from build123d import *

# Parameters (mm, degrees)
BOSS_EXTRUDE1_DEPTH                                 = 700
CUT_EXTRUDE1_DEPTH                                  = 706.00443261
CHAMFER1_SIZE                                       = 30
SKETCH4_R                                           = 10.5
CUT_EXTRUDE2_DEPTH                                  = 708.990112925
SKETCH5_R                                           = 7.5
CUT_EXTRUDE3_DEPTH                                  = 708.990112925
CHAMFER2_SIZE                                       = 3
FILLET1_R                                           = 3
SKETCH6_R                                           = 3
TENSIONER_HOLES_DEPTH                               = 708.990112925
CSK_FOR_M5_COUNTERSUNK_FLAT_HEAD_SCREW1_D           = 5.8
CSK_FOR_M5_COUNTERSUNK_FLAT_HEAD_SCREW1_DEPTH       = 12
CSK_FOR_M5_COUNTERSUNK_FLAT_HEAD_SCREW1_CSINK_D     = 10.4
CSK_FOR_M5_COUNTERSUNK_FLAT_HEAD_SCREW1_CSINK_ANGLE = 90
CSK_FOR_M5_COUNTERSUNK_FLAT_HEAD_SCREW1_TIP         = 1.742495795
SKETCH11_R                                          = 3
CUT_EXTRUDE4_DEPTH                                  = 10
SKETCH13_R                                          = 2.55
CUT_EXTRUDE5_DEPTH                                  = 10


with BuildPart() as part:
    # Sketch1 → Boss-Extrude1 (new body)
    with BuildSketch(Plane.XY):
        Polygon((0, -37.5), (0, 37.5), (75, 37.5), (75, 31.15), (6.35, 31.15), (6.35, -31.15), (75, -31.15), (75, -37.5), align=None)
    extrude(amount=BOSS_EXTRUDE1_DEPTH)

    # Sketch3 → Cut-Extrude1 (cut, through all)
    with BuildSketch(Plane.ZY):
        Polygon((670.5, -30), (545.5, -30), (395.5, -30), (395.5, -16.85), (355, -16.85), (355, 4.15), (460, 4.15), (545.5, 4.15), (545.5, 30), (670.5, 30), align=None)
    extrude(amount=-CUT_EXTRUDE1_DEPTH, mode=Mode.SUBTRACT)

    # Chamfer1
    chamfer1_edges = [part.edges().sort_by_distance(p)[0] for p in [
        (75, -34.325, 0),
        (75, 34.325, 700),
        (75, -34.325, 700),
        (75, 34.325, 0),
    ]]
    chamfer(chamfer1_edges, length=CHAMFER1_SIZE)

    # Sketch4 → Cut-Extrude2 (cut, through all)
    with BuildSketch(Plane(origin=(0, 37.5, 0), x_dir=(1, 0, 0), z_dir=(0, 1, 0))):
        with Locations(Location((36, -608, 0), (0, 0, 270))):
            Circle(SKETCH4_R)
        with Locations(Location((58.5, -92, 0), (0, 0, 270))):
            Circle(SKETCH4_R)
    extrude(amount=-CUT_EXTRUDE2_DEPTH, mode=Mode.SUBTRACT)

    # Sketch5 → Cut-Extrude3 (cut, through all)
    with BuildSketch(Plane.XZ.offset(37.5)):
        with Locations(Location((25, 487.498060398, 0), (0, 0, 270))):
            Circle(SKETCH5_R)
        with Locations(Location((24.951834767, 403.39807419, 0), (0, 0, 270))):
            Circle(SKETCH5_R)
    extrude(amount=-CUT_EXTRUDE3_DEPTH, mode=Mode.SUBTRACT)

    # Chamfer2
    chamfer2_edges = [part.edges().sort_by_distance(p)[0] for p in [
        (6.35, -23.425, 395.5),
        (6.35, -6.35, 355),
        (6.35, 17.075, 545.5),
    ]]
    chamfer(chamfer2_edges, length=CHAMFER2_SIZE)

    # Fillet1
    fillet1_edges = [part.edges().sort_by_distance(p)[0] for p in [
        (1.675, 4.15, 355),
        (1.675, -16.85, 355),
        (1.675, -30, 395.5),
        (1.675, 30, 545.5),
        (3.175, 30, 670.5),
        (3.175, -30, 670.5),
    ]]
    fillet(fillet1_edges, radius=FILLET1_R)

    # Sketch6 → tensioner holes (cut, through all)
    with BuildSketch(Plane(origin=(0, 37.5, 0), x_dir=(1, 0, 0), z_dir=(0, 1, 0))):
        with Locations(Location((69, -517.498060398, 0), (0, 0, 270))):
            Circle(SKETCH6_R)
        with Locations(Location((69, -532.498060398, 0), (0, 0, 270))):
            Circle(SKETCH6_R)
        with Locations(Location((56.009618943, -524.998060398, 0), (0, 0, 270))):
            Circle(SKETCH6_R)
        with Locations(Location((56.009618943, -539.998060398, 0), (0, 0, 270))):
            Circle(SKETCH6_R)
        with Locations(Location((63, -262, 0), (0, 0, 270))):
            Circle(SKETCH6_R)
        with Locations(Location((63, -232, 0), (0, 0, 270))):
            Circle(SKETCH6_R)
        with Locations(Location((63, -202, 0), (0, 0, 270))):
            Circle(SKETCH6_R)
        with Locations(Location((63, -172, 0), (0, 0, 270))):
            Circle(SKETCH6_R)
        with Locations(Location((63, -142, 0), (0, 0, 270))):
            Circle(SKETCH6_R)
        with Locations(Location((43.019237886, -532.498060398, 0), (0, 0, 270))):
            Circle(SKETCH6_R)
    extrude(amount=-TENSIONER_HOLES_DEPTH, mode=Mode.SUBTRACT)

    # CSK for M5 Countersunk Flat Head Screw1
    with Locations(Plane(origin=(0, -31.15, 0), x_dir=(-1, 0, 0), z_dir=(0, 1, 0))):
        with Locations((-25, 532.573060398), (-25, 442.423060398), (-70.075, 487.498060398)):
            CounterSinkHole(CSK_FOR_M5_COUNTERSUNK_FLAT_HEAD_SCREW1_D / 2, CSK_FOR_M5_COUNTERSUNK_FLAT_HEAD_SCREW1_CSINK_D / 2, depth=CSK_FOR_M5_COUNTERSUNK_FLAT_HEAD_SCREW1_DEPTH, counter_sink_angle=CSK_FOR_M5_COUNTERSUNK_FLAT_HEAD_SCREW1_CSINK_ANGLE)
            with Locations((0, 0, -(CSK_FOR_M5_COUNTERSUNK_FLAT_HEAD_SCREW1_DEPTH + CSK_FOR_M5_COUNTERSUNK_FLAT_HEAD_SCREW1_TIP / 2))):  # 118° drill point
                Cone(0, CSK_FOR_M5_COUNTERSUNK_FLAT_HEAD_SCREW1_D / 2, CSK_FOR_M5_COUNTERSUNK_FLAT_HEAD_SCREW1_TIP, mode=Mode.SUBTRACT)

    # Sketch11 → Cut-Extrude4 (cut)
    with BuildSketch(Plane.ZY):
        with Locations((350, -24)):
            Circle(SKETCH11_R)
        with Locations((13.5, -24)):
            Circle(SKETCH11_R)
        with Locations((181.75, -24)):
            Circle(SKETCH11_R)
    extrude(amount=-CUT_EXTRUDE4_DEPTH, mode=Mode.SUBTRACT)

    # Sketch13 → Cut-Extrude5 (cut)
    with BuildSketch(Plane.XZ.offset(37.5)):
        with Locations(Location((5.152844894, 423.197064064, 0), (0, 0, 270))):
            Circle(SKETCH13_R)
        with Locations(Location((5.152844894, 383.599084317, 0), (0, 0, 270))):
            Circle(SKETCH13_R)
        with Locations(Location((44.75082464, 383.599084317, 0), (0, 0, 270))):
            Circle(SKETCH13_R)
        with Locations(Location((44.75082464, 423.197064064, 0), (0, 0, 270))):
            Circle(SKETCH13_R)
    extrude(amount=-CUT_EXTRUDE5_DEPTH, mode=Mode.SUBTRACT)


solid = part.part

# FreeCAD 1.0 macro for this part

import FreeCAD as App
import Part
import Sketcher

V = App.Vector
Q = App.Units.Quantity


def edges_at(feature, points):
    """Names of the edges that pass closest to the given points."""
    edges = feature.Shape.Edges
    near = lambda p: min(range(len(edges)), key=lambda i: edges[i].distToShape(Part.Vertex(*p))[0])
    return sorted({f"Edge{near(p) + 1}" for p in points})


def add_polygon(sketch, points):
    """Adds a closed chain of lines whose ends are joined by coincident constraints."""
    first, n = sketch.GeometryCount, len(points)
    for a, b in zip(points, points[1:] + points[:1]):
        sketch.addGeometry(Part.LineSegment(App.Vector(*a, 0), App.Vector(*b, 0)), False)
    for i in range(n):
        sketch.addConstraint(Sketcher.Constraint("Coincident", first + i, 2, first + (i + 1) % n, 1))

doc = App.newDocument("Part")
body = doc.addObject("PartDesign::Body", "Body")

# Sketch on XY plane
sketch1 = body.newObject("Sketcher::SketchObject", "Sketch")
sketch1.AttachmentSupport = (doc.getObject("XY_Plane"), [""])
sketch1.MapMode = "FlatFace"
add_polygon(sketch1, [(0, 38), (0, -38), (75, -38), (75, -31), (6, -31), (6, 31), (75, 31), (75, 38)])  # lines 0-7
sketch1.addConstraint(Sketcher.Constraint("Vertical", 0))
sketch1.addConstraint(Sketcher.Constraint("Horizontal", 1))
sketch1.addConstraint(Sketcher.Constraint("Vertical", 2))
sketch1.addConstraint(Sketcher.Constraint("Horizontal", 3))
sketch1.addConstraint(Sketcher.Constraint("Vertical", 4))
sketch1.addConstraint(Sketcher.Constraint("Horizontal", 5))
sketch1.addConstraint(Sketcher.Constraint("Vertical", 6))
sketch1.addConstraint(Sketcher.Constraint("Horizontal", 7))
sketch1.addConstraint(Sketcher.Constraint("Symmetric", 0, 2, 7, 2, -1, 1))
sketch1.addConstraint(Sketcher.Constraint("Symmetric", 2, 2, 5, 2, -1))
sketch1.addConstraint(Sketcher.Constraint("Equal", 7, 0))
sketch1.addConstraint(Sketcher.Constraint("DistanceX", 1, 1, 1, 2, Q("75 mm")))
sketch1.addConstraint(Sketcher.Constraint("DistanceY", 4, 1, 4, 2, Q("62.3 mm")))
sketch1.addConstraint(Sketcher.Constraint("DistanceX", 3, 2, 3, 1, Q("68.65 mm")))
pad1 = body.newObject("PartDesign::Pad", "Pad")
pad1.Profile = sketch1
pad1.Length = 700

# Sketch on YZ plane
sketch2 = body.newObject("Sketcher::SketchObject", "Sketch001")
sketch2.AttachmentSupport = (doc.getObject("YZ_Plane"), [""])
sketch2.MapMode = "FlatFace"
add_polygon(sketch2, [(-30, 396), (-30, 670), (30, 670), (30, 546), (4, 546), (4, 355), (-17, 355), (-17, 396)])  # lines 0-7
sketch2.addConstraint(Sketcher.Constraint("Vertical", 0))
sketch2.addConstraint(Sketcher.Constraint("Horizontal", 1))
sketch2.addConstraint(Sketcher.Constraint("Vertical", 2))
sketch2.addConstraint(Sketcher.Constraint("Horizontal", 3))
sketch2.addConstraint(Sketcher.Constraint("Vertical", 4))
sketch2.addConstraint(Sketcher.Constraint("Horizontal", 5))
sketch2.addConstraint(Sketcher.Constraint("Vertical", 6))
sketch2.addConstraint(Sketcher.Constraint("Horizontal", 7))
sketch2.addConstraint(Sketcher.Constraint("DistanceX", 1, 1, 1, 2, Q("60 mm")))
sketch2.addConstraint(Sketcher.Constraint("DistanceX", 5, 2, 5, 1, Q("21 mm")))
sketch2.addConstraint(Sketcher.Constraint("DistanceY", 0, 1, 0, 2, Q("275 mm")))
sketch2.addConstraint(Sketcher.Constraint("DistanceY", 2, 2, 2, 1, Q("125 mm")))
sketch2.addConstraint(Sketcher.Constraint("DistanceY", 4, 2, 4, 1, Q("190.5 mm")))
sketch2.addConstraint(Sketcher.Constraint("DistanceX", 0, 2, -1, 1, Q("30 mm")))
sketch2.addConstraint(Sketcher.Constraint("DistanceY", -1, 1, 4, 2, Q("355 mm")))
sketch2.addConstraint(Sketcher.Constraint("DistanceX", 3, 2, 3, 1, Q("25.85 mm")))
pocket1 = body.newObject("PartDesign::Pocket", "Pocket")
pocket1.Profile = sketch2
pocket1.Type = "ThroughAll"
pocket1.Reversed = True
doc.recompute()

chamfer = body.newObject("PartDesign::Chamfer", "Chamfer")
chamfer.Base = (pocket1, edges_at(pocket1, [
    (75, -34.325, 0),
    (75, 34.325, 700),
    (75, -34.325, 700),
    (75, 34.325, 0),
]))
chamfer.Size = 30

# Sketch on XZ plane
sketch3 = body.newObject("Sketcher::SketchObject", "Sketch002")
sketch3.AttachmentSupport = (doc.getObject("XZ_Plane"), [""])
sketch3.MapMode = "FlatFace"
sketch3.AttachmentOffset = App.Placement(V(0, 0, -37.5), App.Rotation())
sketch3.addGeometry(Part.Circle(V(36, 608, 0), V(0, 0, 1), 10), False)
sketch3.addGeometry(Part.Circle(V(58, 92, 0), V(0, 0, 1), 10), False)
sketch3.addConstraint(Sketcher.Constraint("Equal", 0, 1))
sketch3.addConstraint(Sketcher.Constraint("Diameter", 0, Q("21 mm")))
sketch3.addConstraint(Sketcher.Constraint("DistanceX", -1, 1, 0, 3, Q("36 mm")))
sketch3.addConstraint(Sketcher.Constraint("DistanceY", -1, 1, 0, 3, Q("608 mm")))
sketch3.addConstraint(Sketcher.Constraint("DistanceY", -1, 1, 1, 3, Q("92 mm")))
sketch3.addConstraint(Sketcher.Constraint("DistanceX", -1, 1, 1, 3, Q("58.5 mm")))
pocket2 = body.newObject("PartDesign::Pocket", "Pocket001")
pocket2.Profile = sketch3
pocket2.Type = "ThroughAll"
pocket2.Reversed = True

# Sketch on XZ plane
sketch4 = body.newObject("Sketcher::SketchObject", "Sketch003")
sketch4.AttachmentSupport = (doc.getObject("XZ_Plane"), [""])
sketch4.MapMode = "FlatFace"
sketch4.AttachmentOffset = App.Placement(V(0, 0, 37.5), App.Rotation())
sketch4.addGeometry(Part.Circle(V(25, 487, 0), V(0, 0, 1), 8), False)
sketch4.addGeometry(Part.Circle(V(25, 403, 0), V(0, 0, 1), 8), False)
sketch4.addConstraint(Sketcher.Constraint("Equal", 0, 1))
sketch4.addConstraint(Sketcher.Constraint("Diameter", 0, Q("15 mm")))
sketch4.addConstraint(Sketcher.Constraint("DistanceX", -1, 1, 0, 3, Q("25 mm")))
sketch4.addConstraint(Sketcher.Constraint("DistanceY", -1, 1, 0, 3, Q("487.49806 mm")))
sketch4.addConstraint(Sketcher.Constraint("DistanceX", -1, 1, 1, 3, Q("24.951835 mm")))
sketch4.addConstraint(Sketcher.Constraint("DistanceY", -1, 1, 1, 3, Q("403.398074 mm")))
pocket3 = body.newObject("PartDesign::Pocket", "Pocket002")
pocket3.Profile = sketch4
pocket3.Type = "ThroughAll"
doc.recompute()

chamfer2 = body.newObject("PartDesign::Chamfer", "Chamfer001")
chamfer2.Base = (pocket3, edges_at(pocket3, [(6.35, -23.425, 395.5), (6.35, -6.35, 355), (6.35, 17.075, 545.5)]))
chamfer2.Size = 3
doc.recompute()

fillet = body.newObject("PartDesign::Fillet", "Fillet")
fillet.Base = (chamfer2, edges_at(chamfer2, [
    (1.675, 4.15, 355),
    (1.675, -16.85, 355),
    (1.675, -30, 395.5),
    (1.675, 30, 545.5),
    (3.175, 30, 670.5),
    (3.175, -30, 670.5),
]))
fillet.Radius = 3

# Sketch on XZ plane
sketch5 = body.newObject("Sketcher::SketchObject", "Sketch004")
sketch5.AttachmentSupport = (doc.getObject("XZ_Plane"), [""])
sketch5.MapMode = "FlatFace"
sketch5.AttachmentOffset = App.Placement(V(0, 0, -37.5), App.Rotation())
sketch5.addGeometry(Part.Circle(V(69, 517.5, 0), V(0, 0, 1), 3), False)
sketch5.addGeometry(Part.Circle(V(69, 532.5, 0), V(0, 0, 1), 3), False)
sketch5.addGeometry(Part.Circle(V(56, 525, 0), V(0, 0, 1), 3), False)
sketch5.addGeometry(Part.Circle(V(56, 540, 0), V(0, 0, 1), 3), False)
sketch5.addGeometry(Part.Circle(V(63, 262, 0), V(0, 0, 1), 3), False)
sketch5.addGeometry(Part.Circle(V(63, 232, 0), V(0, 0, 1), 3), False)
sketch5.addGeometry(Part.Circle(V(63, 202, 0), V(0, 0, 1), 3), False)
sketch5.addGeometry(Part.Circle(V(63, 172, 0), V(0, 0, 1), 3), False)
sketch5.addGeometry(Part.Circle(V(63, 142, 0), V(0, 0, 1), 3), False)
sketch5.addGeometry(Part.Circle(V(43, 532.5, 0), V(0, 0, 1), 3), False)
sketch5.addConstraint(Sketcher.Constraint("Equal", 0, 1))
sketch5.addConstraint(Sketcher.Constraint("Equal", 1, 2))
sketch5.addConstraint(Sketcher.Constraint("Equal", 2, 3))
sketch5.addConstraint(Sketcher.Constraint("Equal", 3, 4))
sketch5.addConstraint(Sketcher.Constraint("Equal", 4, 5))
sketch5.addConstraint(Sketcher.Constraint("Equal", 5, 6))
sketch5.addConstraint(Sketcher.Constraint("Equal", 6, 7))
sketch5.addConstraint(Sketcher.Constraint("Equal", 7, 8))
sketch5.addConstraint(Sketcher.Constraint("Equal", 8, 9))
sketch5.addConstraint(Sketcher.Constraint("Horizontal", 1, 3, 9, 3))
sketch5.addConstraint(Sketcher.Constraint("Vertical", 0, 3, 1, 3))
sketch5.addConstraint(Sketcher.Constraint("Vertical", 2, 3, 3, 3))
sketch5.addConstraint(Sketcher.Constraint("Vertical", 4, 3, 5, 3))
sketch5.addConstraint(Sketcher.Constraint("Vertical", 5, 3, 6, 3))
sketch5.addConstraint(Sketcher.Constraint("Vertical", 6, 3, 7, 3))
sketch5.addConstraint(Sketcher.Constraint("Vertical", 7, 3, 8, 3))
sketch5.addConstraint(Sketcher.Constraint("Diameter", 0, Q("6 mm")))
sketch5.addConstraint(Sketcher.Constraint("DistanceX", -1, 1, 0, 3, Q("69 mm")))
sketch5.addConstraint(Sketcher.Constraint("DistanceX", -1, 1, 4, 3, Q("63 mm")))
sketch5.addConstraint(Sketcher.Constraint("DistanceY", -1, 1, 4, 3, Q("262 mm")))
sketch5.addConstraint(Sketcher.Constraint("DistanceY", -1, 1, 5, 3, Q("232 mm")))
sketch5.addConstraint(Sketcher.Constraint("DistanceY", -1, 1, 6, 3, Q("202 mm")))
sketch5.addConstraint(Sketcher.Constraint("DistanceY", -1, 1, 7, 3, Q("172 mm")))
sketch5.addConstraint(Sketcher.Constraint("DistanceY", -1, 1, 8, 3, Q("142 mm")))
sketch5.addConstraint(Sketcher.Constraint("DistanceY", 0, 3, 1, 3, Q("15 mm")))
sketch5.addConstraint(Sketcher.Constraint("DistanceY", 2, 3, 3, 3, Q("15 mm")))
sketch5.addConstraint(Sketcher.Constraint("DistanceY", 0, 3, 2, 3, Q("7.5 mm")))
sketch5.addConstraint(Sketcher.Constraint("DistanceY", -1, 1, 0, 3, Q("517.49806 mm")))
sketch5.addConstraint(Sketcher.Constraint("DistanceX", -1, 1, 2, 3, Q("56.009619 mm")))
sketch5.addConstraint(Sketcher.Constraint("DistanceX", 9, 3, 2, 3, Q("12.990381 mm")))
pocket4 = body.newObject("PartDesign::Pocket", "Pocket003")
pocket4.Profile = sketch5
pocket4.Type = "ThroughAll"
pocket4.Reversed = True

# Sketch on XZ plane
sketch6 = body.newObject("Sketcher::SketchObject", "Sketch005")
sketch6.AttachmentSupport = (doc.getObject("XZ_Plane"), [""])
sketch6.MapMode = "FlatFace"
sketch6.AttachmentOffset = App.Placement(V(0, 0, 31.15), App.Rotation())
sketch6.addGeometry(Part.Circle(V(25, 532.6, 0), V(0, 0, 1), 2.9), False)
sketch6.addGeometry(Part.Circle(V(25, 442.4, 0), V(0, 0, 1), 2.9), False)
sketch6.addGeometry(Part.Circle(V(70.1, 487.5, 0), V(0, 0, 1), 2.9), False)
sketch6.addConstraint(Sketcher.Constraint("Equal", 0, 1))
sketch6.addConstraint(Sketcher.Constraint("Equal", 1, 2))
sketch6.addConstraint(Sketcher.Constraint("Vertical", 0, 3, 1, 3))
sketch6.addConstraint(Sketcher.Constraint("Diameter", 0, Q("5.8 mm")))
sketch6.addConstraint(Sketcher.Constraint("DistanceX", -1, 1, 0, 3, Q("25 mm")))
sketch6.addConstraint(Sketcher.Constraint("DistanceY", 1, 3, 0, 3, Q("90.15 mm")))
sketch6.addConstraint(Sketcher.Constraint("DistanceX", -1, 1, 2, 3, Q("70.075 mm")))
sketch6.addConstraint(Sketcher.Constraint("DistanceY", 1, 3, 2, 3, Q("45.075 mm")))
sketch6.addConstraint(Sketcher.Constraint("DistanceY", -1, 1, 0, 3, Q("532.57306 mm")))
doc.recompute()
hole = body.newObject("PartDesign::Hole", "Hole")
hole.Profile = sketch6
hole.ThreadType = "None"
hole.Diameter = 5.8
hole.DepthType = "Dimension"
hole.Depth = 12
hole.DrillPoint = "Angled"
hole.DrillPointAngle = 118
hole.HoleCutType = "Countersink"
hole.HoleCutDiameter = 10.4
hole.HoleCutCountersinkAngle = 90
hole.Reversed = True

# Sketch on YZ plane
sketch7 = body.newObject("Sketcher::SketchObject", "Sketch006")
sketch7.AttachmentSupport = (doc.getObject("YZ_Plane"), [""])
sketch7.MapMode = "FlatFace"
sketch7.addGeometry(Part.Circle(V(-24, 350, 0), V(0, 0, 1), 3), False)
sketch7.addGeometry(Part.Circle(V(-24, 13.5, 0), V(0, 0, 1), 3), False)
sketch7.addGeometry(Part.Circle(V(-24, 181.8, 0), V(0, 0, 1), 3), False)
sketch7.addConstraint(Sketcher.Constraint("Equal", 0, 1))
sketch7.addConstraint(Sketcher.Constraint("Equal", 1, 2))
sketch7.addConstraint(Sketcher.Constraint("Vertical", 0, 3, 1, 3))
sketch7.addConstraint(Sketcher.Constraint("Vertical", 1, 3, 2, 3))
sketch7.addConstraint(Sketcher.Constraint("Diameter", 0, Q("6 mm")))
sketch7.addConstraint(Sketcher.Constraint("DistanceX", 0, 3, -1, 1, Q("24 mm")))
sketch7.addConstraint(Sketcher.Constraint("DistanceY", -1, 1, 0, 3, Q("350 mm")))
sketch7.addConstraint(Sketcher.Constraint("DistanceY", -1, 1, 1, 3, Q("13.5 mm")))
sketch7.addConstraint(Sketcher.Constraint("DistanceY", -1, 1, 2, 3, Q("181.75 mm")))
pocket5 = body.newObject("PartDesign::Pocket", "Pocket004")
pocket5.Profile = sketch7
pocket5.Length = 10
pocket5.Reversed = True

# Sketch on XZ plane
sketch8 = body.newObject("Sketcher::SketchObject", "Sketch007")
sketch8.AttachmentSupport = (doc.getObject("XZ_Plane"), [""])
sketch8.MapMode = "FlatFace"
sketch8.AttachmentOffset = App.Placement(V(0, 0, 37.5), App.Rotation())
sketch8.addGeometry(Part.Circle(V(5.2, 423.2, 0), V(0, 0, 1), 2.5), False)
sketch8.addGeometry(Part.Circle(V(5.2, 383.6, 0), V(0, 0, 1), 2.5), False)
sketch8.addGeometry(Part.Circle(V(44.8, 383.6, 0), V(0, 0, 1), 2.5), False)
sketch8.addGeometry(Part.Circle(V(44.8, 423.2, 0), V(0, 0, 1), 2.5), False)
sketch8.addConstraint(Sketcher.Constraint("Equal", 0, 1))
sketch8.addConstraint(Sketcher.Constraint("Equal", 1, 2))
sketch8.addConstraint(Sketcher.Constraint("Equal", 2, 3))
sketch8.addConstraint(Sketcher.Constraint("Horizontal", 1, 3, 2, 3))
sketch8.addConstraint(Sketcher.Constraint("Horizontal", 0, 3, 3, 3))
sketch8.addConstraint(Sketcher.Constraint("Vertical", 0, 3, 1, 3))
sketch8.addConstraint(Sketcher.Constraint("Vertical", 2, 3, 3, 3))
sketch8.addConstraint(Sketcher.Constraint("Diameter", 0, Q("5.1 mm")))
sketch8.addConstraint(Sketcher.Constraint("DistanceY", 1, 3, 0, 3, Q("39.59798 mm")))
sketch8.addConstraint(Sketcher.Constraint("DistanceX", 1, 3, 2, 3, Q("39.59798 mm")))
sketch8.addConstraint(Sketcher.Constraint("DistanceX", -1, 1, 0, 3, Q("5.152845 mm")))
sketch8.addConstraint(Sketcher.Constraint("DistanceY", -1, 1, 0, 3, Q("423.197064 mm")))
pocket6 = body.newObject("PartDesign::Pocket", "Pocket005")
pocket6.Profile = sketch8
pocket6.Length = 10

doc.recompute()
